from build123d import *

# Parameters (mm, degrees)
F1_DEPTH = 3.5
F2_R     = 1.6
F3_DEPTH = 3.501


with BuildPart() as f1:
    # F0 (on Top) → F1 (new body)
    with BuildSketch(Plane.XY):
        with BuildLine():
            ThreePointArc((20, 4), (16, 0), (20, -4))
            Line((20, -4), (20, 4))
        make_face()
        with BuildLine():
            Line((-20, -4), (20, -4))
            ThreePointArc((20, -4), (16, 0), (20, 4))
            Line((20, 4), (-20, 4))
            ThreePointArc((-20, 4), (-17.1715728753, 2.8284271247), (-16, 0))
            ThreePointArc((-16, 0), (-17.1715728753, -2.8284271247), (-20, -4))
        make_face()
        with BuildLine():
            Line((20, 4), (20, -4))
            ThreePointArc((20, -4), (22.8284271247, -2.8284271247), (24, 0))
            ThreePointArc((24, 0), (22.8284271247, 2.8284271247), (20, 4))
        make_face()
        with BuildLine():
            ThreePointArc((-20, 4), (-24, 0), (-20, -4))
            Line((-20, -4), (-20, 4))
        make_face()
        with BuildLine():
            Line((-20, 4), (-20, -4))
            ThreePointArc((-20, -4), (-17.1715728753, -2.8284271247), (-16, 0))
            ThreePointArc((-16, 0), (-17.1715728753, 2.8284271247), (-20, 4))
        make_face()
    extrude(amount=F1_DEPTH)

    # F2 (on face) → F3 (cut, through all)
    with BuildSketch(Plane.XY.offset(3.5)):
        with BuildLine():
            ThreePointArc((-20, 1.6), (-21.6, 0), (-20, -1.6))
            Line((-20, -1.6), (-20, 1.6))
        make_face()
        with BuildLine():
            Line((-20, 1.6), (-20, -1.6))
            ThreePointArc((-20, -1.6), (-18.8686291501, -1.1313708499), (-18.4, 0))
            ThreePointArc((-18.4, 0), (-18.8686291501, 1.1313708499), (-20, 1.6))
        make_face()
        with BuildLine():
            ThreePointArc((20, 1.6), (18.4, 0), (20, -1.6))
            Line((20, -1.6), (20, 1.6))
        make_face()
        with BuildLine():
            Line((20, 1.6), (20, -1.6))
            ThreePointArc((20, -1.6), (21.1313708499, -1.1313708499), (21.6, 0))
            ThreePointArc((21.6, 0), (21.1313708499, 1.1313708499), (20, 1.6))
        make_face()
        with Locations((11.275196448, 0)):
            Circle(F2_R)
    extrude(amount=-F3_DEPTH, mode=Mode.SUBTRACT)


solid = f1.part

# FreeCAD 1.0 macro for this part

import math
import FreeCAD as App
import Part
import Sketcher

V = App.Vector
Q = App.Units.Quantity

doc = App.newDocument("Part")
body = doc.addObject("PartDesign::Body", "Body")

# Sketch on XY plane
sketch1 = body.newObject("Sketcher::SketchObject", "Sketch")
sketch1.AttachmentSupport = (doc.getObject("XY_Plane"), [""])
sketch1.MapMode = "FlatFace"
sketch1.addGeometry([
    Part.LineSegment(V(20, 4, 0), V(-20, 4, 0)),  # 0
    Part.ArcOfCircle(Part.Circle(V(-20, 0, 0), V(0, 0, 1), 4), math.radians(90), math.radians(270)),  # 1
    Part.LineSegment(V(-20, -4, 0), V(20, -4, 0)),  # 2
    Part.ArcOfCircle(Part.Circle(V(20, 0, 0), V(0, 0, 1), 4), math.radians(-90), math.radians(0)),  # 3
    Part.ArcOfCircle(Part.Circle(V(20, 0, 0), V(0, 0, 1), 4), math.radians(0), math.radians(90)),  # 4
], False)
sketch1.addConstraint([
    Sketcher.Constraint("Tangent", 0, 2, 1, 1),
    Sketcher.Constraint("Tangent", 1, 2, 2, 1),
    Sketcher.Constraint("Tangent", 2, 2, 3, 1),
    Sketcher.Constraint("Tangent", 3, 2, 4, 1),
    Sketcher.Constraint("Tangent", 4, 2, 0, 1),
    Sketcher.Constraint("Horizontal", 0),
    Sketcher.Constraint("Horizontal", 2),
    Sketcher.Constraint("Equal", 1, 3),
    Sketcher.Constraint("Symmetric", 1, 3, 3, 3, -1, 1),
    Sketcher.Constraint("PointOnObject", 3, 2, -1),
    Sketcher.Constraint("Radius", 1, Q("4 mm")),
    Sketcher.Constraint("DistanceX", 0, 2, 0, 1, Q("40 mm")),
])
pad1 = body.newObject("PartDesign::Pad", "Pad")
pad1.Profile = sketch1
pad1.Length = 3.5

# Sketch on XY plane
sketch2 = body.newObject("Sketcher::SketchObject", "Sketch001")
sketch2.AttachmentSupport = (doc.getObject("XY_Plane"), [""])
sketch2.MapMode = "FlatFace"
sketch2.AttachmentOffset = App.Placement(V(0, 0, 3.5), App.Rotation())
sketch2.addGeometry([
    Part.ArcOfCircle(Part.Circle(V(-20, 0, 0), V(0, 0, 1), 1.6), math.radians(90), math.radians(270)),  # 0
    Part.ArcOfCircle(Part.Circle(V(-20, 0, 0), V(0, 0, 1), 1.6), math.radians(-90), math.radians(0)),  # 1
    Part.ArcOfCircle(Part.Circle(V(-20, 0, 0), V(0, 0, 1), 1.6), math.radians(0), math.radians(90)),  # 2
    Part.ArcOfCircle(Part.Circle(V(20, 0, 0), V(0, 0, 1), 1.6), math.radians(90), math.radians(270)),  # 3
    Part.ArcOfCircle(Part.Circle(V(20, 0, 0), V(0, 0, 1), 1.6), math.radians(-90), math.radians(0)),  # 4
    Part.ArcOfCircle(Part.Circle(V(20, 0, 0), V(0, 0, 1), 1.6), math.radians(0), math.radians(90)),  # 5
    Part.Circle(V(11.3, 0, 0), V(0, 0, 1), 1.6),  # 6
], False)
sketch2.addConstraint([
    Sketcher.Constraint("Tangent", 0, 2, 1, 1),
    Sketcher.Constraint("Tangent", 1, 2, 2, 1),
    Sketcher.Constraint("Tangent", 2, 2, 0, 1),
    Sketcher.Constraint("Tangent", 3, 2, 4, 1),
    Sketcher.Constraint("Tangent", 4, 2, 5, 1),
    Sketcher.Constraint("Tangent", 5, 2, 3, 1),
    Sketcher.Constraint("Equal", 2, 3),
    Sketcher.Constraint("Equal", 5, 6),
    Sketcher.Constraint("Symmetric", 0, 3, 3, 3, -1, 1),
    Sketcher.Constraint("Symmetric", 0, 2, 3, 2, -2),
    Sketcher.Constraint("PointOnObject", 6, 3, -1),
    Sketcher.Constraint("PointOnObject", 1, 2, -1),
    Sketcher.Constraint("PointOnObject", 4, 2, -1),
    Sketcher.Constraint("Vertical", 2, 3, 0, 2),
    Sketcher.Constraint("Vertical", 0, 2, 2, 2),
    Sketcher.Constraint("Vertical", 3, 2, 5, 2),
    Sketcher.Constraint("Diameter", 6, Q("3.2 mm")),
    Sketcher.Constraint("DistanceX", 0, 3, -1, 1, Q("20 mm")),
    Sketcher.Constraint("DistanceX", -1, 1, 6, 3, Q("11.275196 mm")),
])
pocket1 = body.newObject("PartDesign::Pocket", "Pocket")
pocket1.Profile = sketch2
pocket1.Type = "ThroughAll"

doc.recompute()
